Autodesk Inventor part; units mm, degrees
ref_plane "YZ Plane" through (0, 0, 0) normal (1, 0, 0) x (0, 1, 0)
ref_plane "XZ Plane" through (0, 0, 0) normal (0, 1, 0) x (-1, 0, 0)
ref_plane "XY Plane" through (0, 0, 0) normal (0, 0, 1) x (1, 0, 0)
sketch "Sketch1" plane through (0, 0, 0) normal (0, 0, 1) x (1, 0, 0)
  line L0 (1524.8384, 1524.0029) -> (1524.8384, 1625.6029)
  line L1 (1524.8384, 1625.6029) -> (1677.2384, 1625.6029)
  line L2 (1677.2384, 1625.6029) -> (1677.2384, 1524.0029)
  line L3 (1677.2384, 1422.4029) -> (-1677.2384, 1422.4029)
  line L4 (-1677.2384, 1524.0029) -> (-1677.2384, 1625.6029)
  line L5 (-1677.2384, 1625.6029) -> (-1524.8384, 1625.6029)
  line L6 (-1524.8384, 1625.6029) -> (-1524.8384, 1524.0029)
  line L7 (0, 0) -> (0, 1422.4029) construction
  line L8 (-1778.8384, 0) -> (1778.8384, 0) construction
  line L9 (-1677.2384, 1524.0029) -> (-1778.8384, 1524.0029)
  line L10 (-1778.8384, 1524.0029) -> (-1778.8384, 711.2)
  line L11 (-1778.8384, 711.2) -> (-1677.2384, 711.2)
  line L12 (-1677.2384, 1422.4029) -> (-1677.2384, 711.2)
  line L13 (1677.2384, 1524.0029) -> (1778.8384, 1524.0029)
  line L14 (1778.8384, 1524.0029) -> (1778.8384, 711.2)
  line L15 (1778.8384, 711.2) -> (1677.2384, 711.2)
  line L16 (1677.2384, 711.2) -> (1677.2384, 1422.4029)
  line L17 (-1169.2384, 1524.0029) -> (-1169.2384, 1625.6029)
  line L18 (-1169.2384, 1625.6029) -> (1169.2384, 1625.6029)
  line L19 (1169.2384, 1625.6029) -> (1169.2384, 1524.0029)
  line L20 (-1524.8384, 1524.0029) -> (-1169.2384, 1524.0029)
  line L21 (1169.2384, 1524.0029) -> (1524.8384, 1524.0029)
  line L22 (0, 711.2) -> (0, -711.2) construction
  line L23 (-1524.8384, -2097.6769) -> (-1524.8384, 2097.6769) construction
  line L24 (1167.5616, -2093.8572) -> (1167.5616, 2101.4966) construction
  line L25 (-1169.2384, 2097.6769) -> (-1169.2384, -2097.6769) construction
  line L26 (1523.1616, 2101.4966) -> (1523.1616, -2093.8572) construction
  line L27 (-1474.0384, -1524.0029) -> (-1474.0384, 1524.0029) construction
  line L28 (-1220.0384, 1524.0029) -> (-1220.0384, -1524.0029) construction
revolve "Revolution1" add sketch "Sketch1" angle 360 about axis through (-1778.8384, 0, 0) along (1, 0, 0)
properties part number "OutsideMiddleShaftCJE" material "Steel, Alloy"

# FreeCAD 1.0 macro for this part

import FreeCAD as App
import Part
import Sketcher

V = App.Vector
Q = App.Units.Quantity


def add_polygon(sketch, points):
    """Adds a closed chain of lines whose ends are joined by coincident constraints."""
    first, n = sketch.GeometryCount, len(points)
    for a, b in zip(points, points[1:] + points[:1]):
        sketch.addGeometry(Part.LineSegment(App.Vector(*a, 0), App.Vector(*b, 0)), False)
    for i in range(n):
        sketch.addConstraint(Sketcher.Constraint("Coincident", first + i, 2, first + (i + 1) % n, 1))

doc = App.newDocument("Part")
body = doc.addObject("PartDesign::Body", "Body")

# Sketch on XY plane
sketch1 = doc.addObject("Sketcher::SketchObject", "Sketch")
body.addObject(sketch1)
sketch1.AttachmentSupport = (doc.XY_Plane, [""])
sketch1.MapMode = "FlatFace"
add_polygon(sketch1, [(1524.8384, 1625.6029), (1524.8384, 1524.0029), (1169.2384, 1524.0029), (1169.2384, 1625.6029), (-1169.2384, 1625.6029), (-1169.2384, 1524.0029), (-1524.8384, 1524.0029), (-1524.8384, 1625.6029), (-1677.2384, 1625.6029), (-1677.2384, 1524.0029), (-1778.8384, 1524.0029), (-1778.8384, 711.2), (-1677.2384, 711.2), (-1677.2384, 1422.4029), (1677.2384, 1422.4029), (1677.2384, 711.2), (1778.8384, 711.2), (1778.8384, 1524.0029), (1677.2384, 1524.0029), (1677.2384, 1625.6029)])  # lines 0-19
sketch1.addConstraint([
    Sketcher.Constraint("Vertical", 0),
    Sketcher.Constraint("Horizontal", 1),
    Sketcher.Constraint("Vertical", 2),
    Sketcher.Constraint("Horizontal", 3),
    Sketcher.Constraint("Vertical", 4),
    Sketcher.Constraint("Horizontal", 5),
    Sketcher.Constraint("Vertical", 6),
    Sketcher.Constraint("Horizontal", 7),
    Sketcher.Constraint("Vertical", 8),
    Sketcher.Constraint("Horizontal", 9),
    Sketcher.Constraint("Vertical", 10),
    Sketcher.Constraint("Horizontal", 11),
    Sketcher.Constraint("Vertical", 12),
    Sketcher.Constraint("Horizontal", 13),
    Sketcher.Constraint("Vertical", 14),
    Sketcher.Constraint("Horizontal", 15),
    Sketcher.Constraint("Vertical", 16),
    Sketcher.Constraint("Horizontal", 17),
    Sketcher.Constraint("Vertical", 18),
    Sketcher.Constraint("Horizontal", 19),
    Sketcher.Constraint("Symmetric", 1, 2, 4, 2, -2),
    Sketcher.Constraint("Symmetric", 11, 2, 14, 2, -2),
    Sketcher.Constraint("Symmetric", 9, 2, 16, 2, -2),
    Sketcher.Constraint("Symmetric", 7, 2, 18, 2, -2),
    Sketcher.Constraint("Horizontal", 3, 2, 6, 2),
    Sketcher.Constraint("Horizontal", 5, 2, 8, 2),
    Sketcher.Constraint("Vertical", 8, 2, 11, 2),
    Sketcher.Constraint("Equal", 1, 5),
    Sketcher.Constraint("Equal", 17, 0),
    Sketcher.Constraint("DistanceX", 1, 2, 1, 1, Q("14 in")),
    Sketcher.Constraint("DistanceX", 7, 2, 7, 1, Q("6 in")),
    Sketcher.Constraint("DistanceX", 9, 2, 9, 1, Q("4 in")),
    Sketcher.Constraint("DistanceY", -1, 1, 10, 2, Q("28 in")),
    Sketcher.Constraint("DistanceY", 12, 2, 8, 2, Q("4 in")),
    Sketcher.Constraint("DistanceX", -1, 1, 0, 2, Q("60.033 in")),
    Sketcher.Constraint("DistanceY", 10, 2, 10, 1, 812.803),
])
revolution = doc.addObject("PartDesign::Revolution", "Revolution")
body.addObject(revolution)
revolution.Profile = sketch1
revolution.ReferenceAxis = (sketch1, ["H_Axis"])
revolution.Angle = 360

doc.recompute()
